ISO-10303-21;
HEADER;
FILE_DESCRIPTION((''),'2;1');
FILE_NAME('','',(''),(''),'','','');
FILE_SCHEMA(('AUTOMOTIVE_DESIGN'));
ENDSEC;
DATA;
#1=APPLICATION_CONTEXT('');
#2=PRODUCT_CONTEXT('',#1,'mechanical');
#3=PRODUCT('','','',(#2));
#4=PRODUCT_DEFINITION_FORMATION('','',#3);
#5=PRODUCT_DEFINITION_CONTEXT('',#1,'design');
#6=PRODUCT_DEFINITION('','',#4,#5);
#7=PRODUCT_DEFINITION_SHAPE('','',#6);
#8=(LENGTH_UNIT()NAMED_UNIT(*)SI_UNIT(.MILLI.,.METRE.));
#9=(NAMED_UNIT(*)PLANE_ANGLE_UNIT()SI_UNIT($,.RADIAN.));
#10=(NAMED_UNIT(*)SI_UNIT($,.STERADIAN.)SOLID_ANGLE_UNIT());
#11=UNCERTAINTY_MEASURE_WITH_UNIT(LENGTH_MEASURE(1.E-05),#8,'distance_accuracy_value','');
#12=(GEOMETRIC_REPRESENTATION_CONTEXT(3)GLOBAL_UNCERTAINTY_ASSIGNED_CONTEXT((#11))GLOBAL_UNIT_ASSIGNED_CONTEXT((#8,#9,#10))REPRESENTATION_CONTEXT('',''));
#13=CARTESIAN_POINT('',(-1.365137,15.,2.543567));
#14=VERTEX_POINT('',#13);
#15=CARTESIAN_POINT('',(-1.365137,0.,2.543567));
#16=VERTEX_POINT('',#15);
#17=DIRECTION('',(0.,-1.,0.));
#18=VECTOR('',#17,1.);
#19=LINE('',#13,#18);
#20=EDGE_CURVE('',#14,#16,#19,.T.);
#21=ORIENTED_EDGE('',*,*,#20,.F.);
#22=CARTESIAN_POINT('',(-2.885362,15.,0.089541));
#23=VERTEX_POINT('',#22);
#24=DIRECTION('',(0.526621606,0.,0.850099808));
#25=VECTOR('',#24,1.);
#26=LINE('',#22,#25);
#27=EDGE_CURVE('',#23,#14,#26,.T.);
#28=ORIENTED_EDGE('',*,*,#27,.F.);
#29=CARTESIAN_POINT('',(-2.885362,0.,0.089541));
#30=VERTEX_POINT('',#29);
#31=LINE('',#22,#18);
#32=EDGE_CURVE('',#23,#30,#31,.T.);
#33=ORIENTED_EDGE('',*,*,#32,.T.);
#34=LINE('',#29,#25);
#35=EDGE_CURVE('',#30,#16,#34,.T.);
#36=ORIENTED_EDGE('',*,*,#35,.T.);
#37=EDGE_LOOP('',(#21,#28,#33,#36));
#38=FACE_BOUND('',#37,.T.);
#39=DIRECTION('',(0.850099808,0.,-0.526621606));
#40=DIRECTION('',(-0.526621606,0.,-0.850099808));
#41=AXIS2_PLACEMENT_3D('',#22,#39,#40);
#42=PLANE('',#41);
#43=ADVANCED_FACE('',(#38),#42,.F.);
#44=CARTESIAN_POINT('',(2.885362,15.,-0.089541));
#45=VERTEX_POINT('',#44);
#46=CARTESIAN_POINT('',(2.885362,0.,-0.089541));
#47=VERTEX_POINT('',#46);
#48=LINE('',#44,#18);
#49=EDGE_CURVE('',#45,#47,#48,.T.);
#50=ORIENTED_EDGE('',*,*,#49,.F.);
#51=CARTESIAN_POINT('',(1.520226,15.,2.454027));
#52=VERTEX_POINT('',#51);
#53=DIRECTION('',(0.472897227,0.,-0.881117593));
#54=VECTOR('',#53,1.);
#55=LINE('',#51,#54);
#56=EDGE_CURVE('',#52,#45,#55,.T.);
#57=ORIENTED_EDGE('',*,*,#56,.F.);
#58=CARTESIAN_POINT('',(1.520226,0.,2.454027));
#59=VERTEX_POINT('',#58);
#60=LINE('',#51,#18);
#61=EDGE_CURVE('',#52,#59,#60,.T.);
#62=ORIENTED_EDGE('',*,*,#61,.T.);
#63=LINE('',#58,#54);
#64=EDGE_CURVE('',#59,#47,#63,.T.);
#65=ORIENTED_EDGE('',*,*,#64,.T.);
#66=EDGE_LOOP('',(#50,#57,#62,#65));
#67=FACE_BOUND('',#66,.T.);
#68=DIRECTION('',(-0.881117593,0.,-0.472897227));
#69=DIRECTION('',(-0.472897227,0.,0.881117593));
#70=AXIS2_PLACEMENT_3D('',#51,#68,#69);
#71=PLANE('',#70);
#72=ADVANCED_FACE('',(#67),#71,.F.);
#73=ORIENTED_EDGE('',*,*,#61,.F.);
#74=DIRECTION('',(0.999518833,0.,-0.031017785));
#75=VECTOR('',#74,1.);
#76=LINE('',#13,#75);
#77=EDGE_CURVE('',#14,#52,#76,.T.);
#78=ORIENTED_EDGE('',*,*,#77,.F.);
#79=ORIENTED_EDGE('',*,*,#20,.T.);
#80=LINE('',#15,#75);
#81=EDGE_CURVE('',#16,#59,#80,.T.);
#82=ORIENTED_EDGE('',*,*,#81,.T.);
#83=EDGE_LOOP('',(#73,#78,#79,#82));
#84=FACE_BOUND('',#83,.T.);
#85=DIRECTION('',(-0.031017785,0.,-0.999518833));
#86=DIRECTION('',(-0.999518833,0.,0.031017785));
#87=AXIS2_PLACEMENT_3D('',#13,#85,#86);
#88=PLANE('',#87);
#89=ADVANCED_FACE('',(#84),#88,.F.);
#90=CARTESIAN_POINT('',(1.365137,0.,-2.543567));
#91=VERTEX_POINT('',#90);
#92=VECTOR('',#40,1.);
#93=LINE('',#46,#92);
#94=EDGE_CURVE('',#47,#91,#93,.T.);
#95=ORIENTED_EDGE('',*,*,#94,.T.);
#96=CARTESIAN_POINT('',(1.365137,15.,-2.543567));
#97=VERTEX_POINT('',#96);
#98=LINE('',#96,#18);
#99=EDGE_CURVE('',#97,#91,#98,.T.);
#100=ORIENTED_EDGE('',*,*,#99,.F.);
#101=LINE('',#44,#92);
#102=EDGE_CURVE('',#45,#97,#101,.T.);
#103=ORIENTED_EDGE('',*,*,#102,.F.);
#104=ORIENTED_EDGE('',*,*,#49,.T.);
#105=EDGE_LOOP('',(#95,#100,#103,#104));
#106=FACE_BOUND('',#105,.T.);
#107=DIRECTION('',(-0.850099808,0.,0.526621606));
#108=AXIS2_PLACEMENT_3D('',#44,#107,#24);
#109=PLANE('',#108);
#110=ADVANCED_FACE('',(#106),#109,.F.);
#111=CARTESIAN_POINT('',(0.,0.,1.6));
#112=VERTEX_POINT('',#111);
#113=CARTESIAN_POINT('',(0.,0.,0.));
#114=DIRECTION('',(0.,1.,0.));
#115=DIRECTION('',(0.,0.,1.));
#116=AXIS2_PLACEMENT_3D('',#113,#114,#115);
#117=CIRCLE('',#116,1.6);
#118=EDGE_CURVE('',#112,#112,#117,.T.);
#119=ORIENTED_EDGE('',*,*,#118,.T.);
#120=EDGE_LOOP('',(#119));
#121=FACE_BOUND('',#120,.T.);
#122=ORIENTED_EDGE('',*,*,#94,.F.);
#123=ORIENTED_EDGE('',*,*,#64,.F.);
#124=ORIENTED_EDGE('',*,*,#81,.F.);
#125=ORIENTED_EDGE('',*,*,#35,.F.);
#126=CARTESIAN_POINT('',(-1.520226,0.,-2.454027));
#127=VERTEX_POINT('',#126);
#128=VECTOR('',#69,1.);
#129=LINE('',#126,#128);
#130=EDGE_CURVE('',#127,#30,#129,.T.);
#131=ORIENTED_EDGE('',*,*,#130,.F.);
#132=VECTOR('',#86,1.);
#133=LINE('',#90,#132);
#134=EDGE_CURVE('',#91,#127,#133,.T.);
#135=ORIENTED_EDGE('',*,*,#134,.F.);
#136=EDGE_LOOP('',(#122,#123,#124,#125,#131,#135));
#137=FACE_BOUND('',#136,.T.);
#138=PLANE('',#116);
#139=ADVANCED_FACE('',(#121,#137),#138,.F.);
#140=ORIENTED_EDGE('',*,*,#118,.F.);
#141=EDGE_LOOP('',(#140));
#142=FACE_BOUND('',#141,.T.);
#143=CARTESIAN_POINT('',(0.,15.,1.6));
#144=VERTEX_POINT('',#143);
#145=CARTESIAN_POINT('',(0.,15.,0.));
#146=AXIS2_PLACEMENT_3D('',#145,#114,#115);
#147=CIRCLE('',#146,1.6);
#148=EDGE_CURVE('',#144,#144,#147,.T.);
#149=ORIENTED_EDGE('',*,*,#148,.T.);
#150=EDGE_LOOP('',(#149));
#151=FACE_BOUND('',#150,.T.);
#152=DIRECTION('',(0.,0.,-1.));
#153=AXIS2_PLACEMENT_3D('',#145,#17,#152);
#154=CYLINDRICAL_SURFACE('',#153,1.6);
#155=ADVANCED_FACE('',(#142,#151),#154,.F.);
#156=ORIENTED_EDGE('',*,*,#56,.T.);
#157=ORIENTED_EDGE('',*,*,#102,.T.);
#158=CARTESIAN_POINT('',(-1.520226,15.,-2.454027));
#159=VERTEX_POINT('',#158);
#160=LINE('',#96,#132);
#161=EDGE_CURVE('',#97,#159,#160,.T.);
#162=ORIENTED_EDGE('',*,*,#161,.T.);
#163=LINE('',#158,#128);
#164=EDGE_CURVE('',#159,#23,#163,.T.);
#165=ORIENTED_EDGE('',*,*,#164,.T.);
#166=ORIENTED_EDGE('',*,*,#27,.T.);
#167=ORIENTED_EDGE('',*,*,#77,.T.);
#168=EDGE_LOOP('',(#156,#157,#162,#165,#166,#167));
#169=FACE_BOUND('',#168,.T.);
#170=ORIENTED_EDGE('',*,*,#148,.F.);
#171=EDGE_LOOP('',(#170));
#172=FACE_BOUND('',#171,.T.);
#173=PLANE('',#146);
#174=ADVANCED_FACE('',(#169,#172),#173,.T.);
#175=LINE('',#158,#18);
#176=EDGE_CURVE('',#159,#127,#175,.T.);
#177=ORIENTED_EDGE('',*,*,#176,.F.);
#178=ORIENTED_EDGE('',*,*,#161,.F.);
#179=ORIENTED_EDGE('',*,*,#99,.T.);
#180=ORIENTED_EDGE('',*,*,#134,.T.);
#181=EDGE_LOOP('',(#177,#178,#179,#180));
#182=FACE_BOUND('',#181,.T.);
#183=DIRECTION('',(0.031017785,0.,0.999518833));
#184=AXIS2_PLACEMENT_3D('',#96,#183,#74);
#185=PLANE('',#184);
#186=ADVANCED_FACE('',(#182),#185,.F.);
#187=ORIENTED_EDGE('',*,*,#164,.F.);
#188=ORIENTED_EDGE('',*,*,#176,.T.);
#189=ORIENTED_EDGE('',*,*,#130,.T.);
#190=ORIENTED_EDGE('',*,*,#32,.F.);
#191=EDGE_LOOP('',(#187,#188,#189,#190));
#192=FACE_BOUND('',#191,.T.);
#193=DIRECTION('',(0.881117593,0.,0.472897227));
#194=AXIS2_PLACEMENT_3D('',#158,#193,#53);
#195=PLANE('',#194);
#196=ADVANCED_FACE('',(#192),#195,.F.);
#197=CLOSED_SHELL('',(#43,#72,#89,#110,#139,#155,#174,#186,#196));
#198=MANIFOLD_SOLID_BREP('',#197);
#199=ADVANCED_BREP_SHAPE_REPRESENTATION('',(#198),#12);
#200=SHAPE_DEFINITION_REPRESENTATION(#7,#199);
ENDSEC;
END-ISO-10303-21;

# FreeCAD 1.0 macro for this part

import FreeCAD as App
import Part
import Sketcher
Q = App.Units.Quantity

doc = App.newDocument("Part")
body = doc.addObject("PartDesign::Body", "Body")

sketch1 = body.newObject("Sketcher::SketchObject", "Sketch")
sketch1.AttachmentSupport = (doc.getObject("XZ_Plane"), [""])
sketch1.MapMode = "FlatFace"
sketch1.addGeometry([
    Part.LineSegment(App.Vector(1.4, -2.5, 0), App.Vector(-1.5, -2.5, 0)),
    Part.LineSegment(App.Vector(-1.5, -2.5, 0), App.Vector(-2.9, 0.1, 0)),
    Part.LineSegment(App.Vector(-2.9, 0.1, 0), App.Vector(-1.4, 2.5, 0)),
    Part.LineSegment(App.Vector(-1.4, 2.5, 0), App.Vector(1.5, 2.5, 0)),
    Part.LineSegment(App.Vector(1.5, 2.5, 0), App.Vector(2.9, -0.1, 0)),
    Part.LineSegment(App.Vector(2.9, -0.1, 0), App.Vector(1.4, -2.5, 0)),
    Part.Circle(App.Vector(0, 0, 0), App.Vector(0, 0, 1), 1.6),
], False)
sketch1.addConstraint([
    Sketcher.Constraint("Coincident", 0, 2, 1, 1),
    Sketcher.Constraint("Coincident", 1, 2, 2, 1),
    Sketcher.Constraint("Coincident", 2, 2, 3, 1),
    Sketcher.Constraint("Coincident", 3, 2, 4, 1),
    Sketcher.Constraint("Coincident", 4, 2, 5, 1),
    Sketcher.Constraint("Coincident", 5, 2, 0, 1),
    Sketcher.Constraint("Coincident", 6, 3, -1, 1),
    Sketcher.Constraint("Symmetric", 0, 2, 3, 2, -1, 1),
    Sketcher.Constraint("Symmetric", 1, 2, 4, 2, -1, 1),
    Sketcher.Constraint("Symmetric", 2, 2, 5, 2, -1, 1),
    Sketcher.Constraint("Equal", 0, 1),
    Sketcher.Constraint("Equal", 1, 2),
    Sketcher.Constraint("Diameter", 6, Q("3.2 mm")),
    Sketcher.Constraint("DistanceX", 2, 2, 4, 2, Q("4.250499 mm")),
    Sketcher.Constraint("Distance", 0, Q("2.886751 mm")),
    Sketcher.Constraint("DistanceY", -1, 1, 1, 2, Q("0.089541 mm")),
    Sketcher.Constraint("DistanceX", 0, 2, 2, 2, Q("0.155089 mm")),
])
pad1 = body.newObject("PartDesign::Pad", "Pad")
pad1.Profile = sketch1
pad1.Length = 15
pad1.Reversed = True

doc.recompute()
